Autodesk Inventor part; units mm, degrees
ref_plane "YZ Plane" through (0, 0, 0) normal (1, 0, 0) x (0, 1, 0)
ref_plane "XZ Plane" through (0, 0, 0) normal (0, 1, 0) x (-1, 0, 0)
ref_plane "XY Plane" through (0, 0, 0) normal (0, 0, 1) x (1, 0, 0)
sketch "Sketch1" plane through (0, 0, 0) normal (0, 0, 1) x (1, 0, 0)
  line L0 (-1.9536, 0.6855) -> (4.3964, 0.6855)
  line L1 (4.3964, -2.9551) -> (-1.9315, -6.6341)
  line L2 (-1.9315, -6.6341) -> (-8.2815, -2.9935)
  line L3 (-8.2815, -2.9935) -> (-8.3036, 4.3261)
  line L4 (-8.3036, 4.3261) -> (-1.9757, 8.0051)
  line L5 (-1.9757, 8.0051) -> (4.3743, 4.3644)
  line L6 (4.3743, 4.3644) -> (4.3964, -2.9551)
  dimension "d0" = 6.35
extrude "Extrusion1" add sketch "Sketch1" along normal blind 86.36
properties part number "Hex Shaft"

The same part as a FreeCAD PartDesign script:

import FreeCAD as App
import Part
import Sketcher
Q = App.Units.Quantity


def add_polygon(sketch, points):
    """Adds a closed chain of lines whose ends are joined by coincident constraints."""
    first, n = sketch.GeometryCount, len(points)
    for a, b in zip(points, points[1:] + points[:1]):
        sketch.addGeometry(Part.LineSegment(App.Vector(*a, 0), App.Vector(*b, 0)), False)
    for i in range(n):
        sketch.addConstraint(Sketcher.Constraint("Coincident", first + i, 2, first + (i + 1) % n, 1))

doc = App.newDocument("Part")
params = doc.addObject("Spreadsheet::Sheet", "Params")
for row, (alias, value) in enumerate([
    ("pad1_length", "3.4 in"),
], start=1):
    params.set(f"A{row}", alias)
    params.set(f"B{row}", "=" + value)
    params.setAlias(f"B{row}", alias)

body = doc.addObject("PartDesign::Body", "Body")

# Sketch on XY plane
sketch1 = body.newObject("Sketcher::SketchObject", "Sketch")
sketch1.AttachmentSupport = (doc.getObject("XY_Plane"), [""])
sketch1.MapMode = "FlatFace"
add_polygon(sketch1, [(-1.9315, -6.6341), (4.3964, -2.9551), (4.3743, 4.3644), (-1.9757, 8.0051), (-8.3036, 4.3261), (-8.2815, -2.9935)])  # lines 0-5
sketch1.addConstraint([
    Sketcher.Constraint("Parallel", 0, 3),
    Sketcher.Constraint("Parallel", 1, 4),
    Sketcher.Constraint("Parallel", 2, 5),
    Sketcher.Constraint("Equal", 0, 1),
    Sketcher.Constraint("Equal", 1, 2),
    Sketcher.Constraint("Equal", 2, 3),
    Sketcher.Constraint("DistanceX", 2, 2, 1, 2, Q("0.25 in")),
    Sketcher.Constraint("DistanceX", 3, 2, 0, 2, Q("0.5 in")),
    Sketcher.Constraint("DistanceY", 5, 2, 1, 2, Q("0.433 in")),
    Sketcher.Constraint("DistanceY", 0, 2, 2, 2, Q("0.4315 in")),
    Sketcher.Constraint("DistanceX", -1, 1, 0, 2, 4.3964),
    Sketcher.Constraint("DistanceY", 0, 2, -1, 1, 2.955),
])
pad1 = body.newObject("PartDesign::Pad", "Pad")
pad1.Profile = sketch1
pad1.setExpression("Length", "Params.pad1_length")

doc.recompute()
